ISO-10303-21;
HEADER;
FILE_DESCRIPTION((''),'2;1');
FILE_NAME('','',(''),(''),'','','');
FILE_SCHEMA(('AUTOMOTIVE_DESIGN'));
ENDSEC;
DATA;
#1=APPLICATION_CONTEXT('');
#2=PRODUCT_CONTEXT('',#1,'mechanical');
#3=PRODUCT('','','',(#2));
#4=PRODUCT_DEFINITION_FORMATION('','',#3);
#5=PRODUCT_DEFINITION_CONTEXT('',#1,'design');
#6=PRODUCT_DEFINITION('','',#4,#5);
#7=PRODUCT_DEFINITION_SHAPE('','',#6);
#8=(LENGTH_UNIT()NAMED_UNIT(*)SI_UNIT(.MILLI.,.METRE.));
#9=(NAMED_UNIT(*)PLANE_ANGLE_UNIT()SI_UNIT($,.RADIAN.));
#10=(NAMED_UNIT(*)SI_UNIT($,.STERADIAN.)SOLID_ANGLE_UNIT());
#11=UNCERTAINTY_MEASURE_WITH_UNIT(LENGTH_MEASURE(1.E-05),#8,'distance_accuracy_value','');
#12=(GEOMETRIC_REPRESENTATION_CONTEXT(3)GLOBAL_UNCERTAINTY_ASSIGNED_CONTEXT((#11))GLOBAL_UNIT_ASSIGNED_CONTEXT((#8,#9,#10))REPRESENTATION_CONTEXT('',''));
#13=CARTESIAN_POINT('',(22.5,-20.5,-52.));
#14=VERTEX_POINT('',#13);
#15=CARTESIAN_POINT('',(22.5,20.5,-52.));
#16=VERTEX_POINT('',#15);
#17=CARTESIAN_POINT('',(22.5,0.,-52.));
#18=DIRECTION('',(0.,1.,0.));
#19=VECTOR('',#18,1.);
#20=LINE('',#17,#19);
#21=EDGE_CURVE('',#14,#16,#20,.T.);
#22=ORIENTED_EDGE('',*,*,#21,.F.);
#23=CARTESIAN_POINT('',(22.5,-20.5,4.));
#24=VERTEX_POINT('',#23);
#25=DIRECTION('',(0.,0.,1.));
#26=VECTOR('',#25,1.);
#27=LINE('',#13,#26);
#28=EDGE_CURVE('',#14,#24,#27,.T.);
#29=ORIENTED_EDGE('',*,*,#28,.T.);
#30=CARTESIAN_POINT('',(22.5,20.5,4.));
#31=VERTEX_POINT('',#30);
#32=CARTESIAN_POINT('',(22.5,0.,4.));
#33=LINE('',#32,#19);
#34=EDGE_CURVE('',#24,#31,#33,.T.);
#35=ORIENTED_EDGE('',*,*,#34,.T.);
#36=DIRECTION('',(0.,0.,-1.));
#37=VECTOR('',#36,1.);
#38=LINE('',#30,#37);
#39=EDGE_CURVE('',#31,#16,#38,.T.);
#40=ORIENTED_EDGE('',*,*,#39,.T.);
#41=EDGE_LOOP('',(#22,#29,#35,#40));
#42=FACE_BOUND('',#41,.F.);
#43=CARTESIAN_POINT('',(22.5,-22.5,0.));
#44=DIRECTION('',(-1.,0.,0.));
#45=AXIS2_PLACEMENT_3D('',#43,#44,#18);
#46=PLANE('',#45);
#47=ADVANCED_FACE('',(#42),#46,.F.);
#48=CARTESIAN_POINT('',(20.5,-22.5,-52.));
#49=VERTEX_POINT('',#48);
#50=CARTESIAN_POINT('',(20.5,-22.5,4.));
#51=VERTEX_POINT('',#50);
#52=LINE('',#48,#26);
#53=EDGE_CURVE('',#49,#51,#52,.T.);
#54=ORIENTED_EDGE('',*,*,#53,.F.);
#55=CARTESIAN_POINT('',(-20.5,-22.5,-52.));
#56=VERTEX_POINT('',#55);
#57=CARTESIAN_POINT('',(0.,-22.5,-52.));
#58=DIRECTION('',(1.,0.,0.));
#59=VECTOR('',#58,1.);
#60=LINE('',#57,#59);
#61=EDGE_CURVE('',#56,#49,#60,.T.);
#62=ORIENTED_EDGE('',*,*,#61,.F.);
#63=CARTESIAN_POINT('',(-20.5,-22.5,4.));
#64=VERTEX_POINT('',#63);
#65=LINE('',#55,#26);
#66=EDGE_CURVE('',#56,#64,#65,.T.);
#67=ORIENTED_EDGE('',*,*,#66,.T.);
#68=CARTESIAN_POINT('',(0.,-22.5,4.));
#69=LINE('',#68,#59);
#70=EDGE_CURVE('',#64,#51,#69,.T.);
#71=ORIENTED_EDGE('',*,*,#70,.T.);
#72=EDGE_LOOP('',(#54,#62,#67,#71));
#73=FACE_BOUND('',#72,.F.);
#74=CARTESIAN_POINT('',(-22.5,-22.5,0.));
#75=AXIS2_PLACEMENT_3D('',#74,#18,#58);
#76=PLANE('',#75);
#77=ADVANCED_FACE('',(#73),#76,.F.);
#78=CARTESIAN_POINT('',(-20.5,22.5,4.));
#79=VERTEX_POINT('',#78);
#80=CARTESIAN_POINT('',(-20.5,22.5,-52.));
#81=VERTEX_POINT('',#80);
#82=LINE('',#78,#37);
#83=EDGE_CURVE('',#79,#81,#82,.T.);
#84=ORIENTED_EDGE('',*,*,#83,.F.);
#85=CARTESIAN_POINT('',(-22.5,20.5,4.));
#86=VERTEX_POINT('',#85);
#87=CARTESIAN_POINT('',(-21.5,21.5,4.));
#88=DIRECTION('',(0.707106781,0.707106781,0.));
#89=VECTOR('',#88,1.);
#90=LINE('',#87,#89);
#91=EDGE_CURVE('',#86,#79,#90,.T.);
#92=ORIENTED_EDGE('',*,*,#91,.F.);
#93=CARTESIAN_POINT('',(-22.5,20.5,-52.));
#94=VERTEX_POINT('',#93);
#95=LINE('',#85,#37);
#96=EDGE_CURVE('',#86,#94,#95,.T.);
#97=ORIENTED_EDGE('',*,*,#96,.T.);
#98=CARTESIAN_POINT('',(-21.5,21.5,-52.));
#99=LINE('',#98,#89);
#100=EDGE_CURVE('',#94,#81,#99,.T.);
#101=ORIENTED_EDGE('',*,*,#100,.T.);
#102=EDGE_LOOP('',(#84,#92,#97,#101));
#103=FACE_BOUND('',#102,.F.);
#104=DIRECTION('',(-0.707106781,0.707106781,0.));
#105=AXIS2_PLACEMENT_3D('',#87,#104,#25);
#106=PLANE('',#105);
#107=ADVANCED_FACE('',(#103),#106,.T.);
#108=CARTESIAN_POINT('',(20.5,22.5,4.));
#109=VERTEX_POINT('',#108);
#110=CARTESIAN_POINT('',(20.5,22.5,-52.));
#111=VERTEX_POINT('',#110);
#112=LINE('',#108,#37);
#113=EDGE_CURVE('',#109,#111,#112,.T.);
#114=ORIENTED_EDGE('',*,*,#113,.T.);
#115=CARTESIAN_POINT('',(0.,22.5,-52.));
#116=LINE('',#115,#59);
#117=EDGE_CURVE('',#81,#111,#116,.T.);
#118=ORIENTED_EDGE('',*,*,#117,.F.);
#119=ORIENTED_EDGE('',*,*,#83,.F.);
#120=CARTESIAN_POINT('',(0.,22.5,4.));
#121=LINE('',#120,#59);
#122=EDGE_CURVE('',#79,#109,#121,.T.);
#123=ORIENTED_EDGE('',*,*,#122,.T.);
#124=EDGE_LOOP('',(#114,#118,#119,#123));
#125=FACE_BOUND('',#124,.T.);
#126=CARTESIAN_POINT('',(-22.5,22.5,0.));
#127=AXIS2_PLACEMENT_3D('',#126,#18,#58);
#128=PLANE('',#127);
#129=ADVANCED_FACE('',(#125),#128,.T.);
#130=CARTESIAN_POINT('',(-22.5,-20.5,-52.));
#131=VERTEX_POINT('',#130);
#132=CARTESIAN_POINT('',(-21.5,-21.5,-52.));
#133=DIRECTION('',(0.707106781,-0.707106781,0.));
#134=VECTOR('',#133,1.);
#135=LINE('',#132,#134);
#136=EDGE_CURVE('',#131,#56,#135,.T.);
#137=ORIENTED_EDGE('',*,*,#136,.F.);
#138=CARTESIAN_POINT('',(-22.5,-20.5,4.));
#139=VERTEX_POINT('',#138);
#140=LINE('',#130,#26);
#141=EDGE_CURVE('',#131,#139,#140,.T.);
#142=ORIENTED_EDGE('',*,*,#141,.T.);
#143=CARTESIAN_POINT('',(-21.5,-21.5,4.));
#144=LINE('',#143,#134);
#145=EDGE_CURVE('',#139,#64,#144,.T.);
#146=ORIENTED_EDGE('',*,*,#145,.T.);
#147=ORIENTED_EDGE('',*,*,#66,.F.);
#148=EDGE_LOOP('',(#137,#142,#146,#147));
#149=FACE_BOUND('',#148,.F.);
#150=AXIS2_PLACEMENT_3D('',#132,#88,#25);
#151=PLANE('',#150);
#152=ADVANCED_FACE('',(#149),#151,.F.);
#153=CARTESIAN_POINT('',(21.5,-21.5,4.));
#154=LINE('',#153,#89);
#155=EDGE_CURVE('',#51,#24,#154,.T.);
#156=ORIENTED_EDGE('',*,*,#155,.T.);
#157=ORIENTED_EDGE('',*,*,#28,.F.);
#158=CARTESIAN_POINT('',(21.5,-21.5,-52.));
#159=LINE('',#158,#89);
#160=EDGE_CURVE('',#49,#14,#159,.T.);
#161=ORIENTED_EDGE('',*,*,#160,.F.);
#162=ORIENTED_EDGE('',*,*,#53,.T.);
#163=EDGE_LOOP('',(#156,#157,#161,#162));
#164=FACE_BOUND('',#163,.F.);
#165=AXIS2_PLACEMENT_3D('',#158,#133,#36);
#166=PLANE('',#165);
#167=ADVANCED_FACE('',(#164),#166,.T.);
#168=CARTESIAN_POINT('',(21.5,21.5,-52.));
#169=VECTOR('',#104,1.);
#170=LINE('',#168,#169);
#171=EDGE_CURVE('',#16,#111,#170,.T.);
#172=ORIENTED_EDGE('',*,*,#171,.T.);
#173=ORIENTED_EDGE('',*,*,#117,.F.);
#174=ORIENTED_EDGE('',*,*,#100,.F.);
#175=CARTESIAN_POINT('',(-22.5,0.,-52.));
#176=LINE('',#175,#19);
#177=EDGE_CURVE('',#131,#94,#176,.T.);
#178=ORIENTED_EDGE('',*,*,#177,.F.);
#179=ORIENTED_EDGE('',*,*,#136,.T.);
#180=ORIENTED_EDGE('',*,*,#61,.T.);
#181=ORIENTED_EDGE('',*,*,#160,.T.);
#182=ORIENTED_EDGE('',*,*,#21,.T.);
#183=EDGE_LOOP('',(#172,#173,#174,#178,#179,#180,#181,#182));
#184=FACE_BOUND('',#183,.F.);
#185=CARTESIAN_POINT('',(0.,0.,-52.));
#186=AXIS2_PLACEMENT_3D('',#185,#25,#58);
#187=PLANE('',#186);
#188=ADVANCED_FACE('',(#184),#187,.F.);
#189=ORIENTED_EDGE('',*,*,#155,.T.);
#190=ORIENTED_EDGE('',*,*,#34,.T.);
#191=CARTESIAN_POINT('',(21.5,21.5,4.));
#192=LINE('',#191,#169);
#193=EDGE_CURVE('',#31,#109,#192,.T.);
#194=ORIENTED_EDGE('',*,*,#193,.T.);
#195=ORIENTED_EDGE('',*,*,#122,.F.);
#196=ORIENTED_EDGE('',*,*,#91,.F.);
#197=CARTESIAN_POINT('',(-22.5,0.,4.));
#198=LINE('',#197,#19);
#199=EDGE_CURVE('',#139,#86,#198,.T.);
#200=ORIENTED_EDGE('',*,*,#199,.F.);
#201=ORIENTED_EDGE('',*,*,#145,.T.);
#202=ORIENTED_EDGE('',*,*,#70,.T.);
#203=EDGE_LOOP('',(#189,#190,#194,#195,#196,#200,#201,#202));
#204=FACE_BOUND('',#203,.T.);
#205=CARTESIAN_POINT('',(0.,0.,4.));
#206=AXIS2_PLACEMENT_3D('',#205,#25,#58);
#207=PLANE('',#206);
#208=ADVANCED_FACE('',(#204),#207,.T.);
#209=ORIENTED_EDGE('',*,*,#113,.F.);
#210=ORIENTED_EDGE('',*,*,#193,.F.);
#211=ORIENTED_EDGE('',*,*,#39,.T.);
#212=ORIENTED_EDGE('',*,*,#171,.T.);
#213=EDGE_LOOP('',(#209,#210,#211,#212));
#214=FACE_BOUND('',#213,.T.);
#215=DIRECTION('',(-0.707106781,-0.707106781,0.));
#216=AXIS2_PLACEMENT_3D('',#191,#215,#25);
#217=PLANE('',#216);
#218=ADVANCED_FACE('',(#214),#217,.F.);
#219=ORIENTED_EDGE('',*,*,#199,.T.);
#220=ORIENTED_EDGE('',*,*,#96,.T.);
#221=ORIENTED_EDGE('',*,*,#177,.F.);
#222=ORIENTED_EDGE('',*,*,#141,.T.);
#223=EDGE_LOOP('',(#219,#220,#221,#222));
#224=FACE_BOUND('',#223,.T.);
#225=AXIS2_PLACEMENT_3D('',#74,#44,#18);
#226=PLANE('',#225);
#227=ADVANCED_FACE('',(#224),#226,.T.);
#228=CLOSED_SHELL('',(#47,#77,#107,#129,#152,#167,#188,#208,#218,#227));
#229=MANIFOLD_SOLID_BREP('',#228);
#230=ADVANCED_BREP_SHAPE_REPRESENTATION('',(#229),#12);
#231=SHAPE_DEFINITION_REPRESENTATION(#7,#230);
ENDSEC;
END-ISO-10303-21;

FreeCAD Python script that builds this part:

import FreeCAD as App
import Part
import Sketcher
Q = App.Units.Quantity


def edges_at(feature, points):
    """Names of the edges that pass closest to the given points."""
    edges = feature.Shape.Edges
    near = lambda p: min(range(len(edges)), key=lambda i: edges[i].distToShape(Part.Vertex(*p))[0])
    return sorted({f"Edge{near(p) + 1}" for p in points})


def add_polygon(sketch, points):
    """Adds a closed chain of lines whose ends are joined by coincident constraints."""
    first, n = sketch.GeometryCount, len(points)
    for a, b in zip(points, points[1:] + points[:1]):
        sketch.addGeometry(Part.LineSegment(App.Vector(*a, 0), App.Vector(*b, 0)), False)
    for i in range(n):
        sketch.addConstraint(Sketcher.Constraint("Coincident", first + i, 2, first + (i + 1) % n, 1))

doc = App.newDocument("Part")
body = doc.addObject("PartDesign::Body", "Body")

sketch1 = body.newObject("Sketcher::SketchObject", "Sketch")
sketch1.AttachmentSupport = (doc.getObject("XY_Plane"), [""])
sketch1.MapMode = "FlatFace"
add_polygon(sketch1, [(-22, 22), (-22, -22), (22, -22), (22, 22)])
sketch1.addConstraint([
    Sketcher.Constraint("Vertical", 0),
    Sketcher.Constraint("Horizontal", 1),
    Sketcher.Constraint("Vertical", 2),
    Sketcher.Constraint("Horizontal", 3),
    Sketcher.Constraint("Symmetric", 0, 2, 2, 2, -1, 1),
    Sketcher.Constraint("Equal", 3, 0),
    Sketcher.Constraint("DistanceX", 1, 1, 1, 2, Q("45 mm")),
])
pad1 = body.newObject("PartDesign::Pad", "Pad")
pad1.Profile = sketch1
pad1.Type = "TwoLengths"
pad1.Length = 52
pad1.Length2 = 4
pad1.Reversed = True
doc.recompute()

chamfer = body.newObject("PartDesign::Chamfer", "Chamfer")
chamfer.Base = (pad1, edges_at(pad1, [
    (-22.5, 22.5, -24),
    (22.5, 22.5, -24),
    (22.5, -22.5, -24),
    (-22.5, -22.5, -24),
]))
chamfer.Size = 2

doc.recompute()
